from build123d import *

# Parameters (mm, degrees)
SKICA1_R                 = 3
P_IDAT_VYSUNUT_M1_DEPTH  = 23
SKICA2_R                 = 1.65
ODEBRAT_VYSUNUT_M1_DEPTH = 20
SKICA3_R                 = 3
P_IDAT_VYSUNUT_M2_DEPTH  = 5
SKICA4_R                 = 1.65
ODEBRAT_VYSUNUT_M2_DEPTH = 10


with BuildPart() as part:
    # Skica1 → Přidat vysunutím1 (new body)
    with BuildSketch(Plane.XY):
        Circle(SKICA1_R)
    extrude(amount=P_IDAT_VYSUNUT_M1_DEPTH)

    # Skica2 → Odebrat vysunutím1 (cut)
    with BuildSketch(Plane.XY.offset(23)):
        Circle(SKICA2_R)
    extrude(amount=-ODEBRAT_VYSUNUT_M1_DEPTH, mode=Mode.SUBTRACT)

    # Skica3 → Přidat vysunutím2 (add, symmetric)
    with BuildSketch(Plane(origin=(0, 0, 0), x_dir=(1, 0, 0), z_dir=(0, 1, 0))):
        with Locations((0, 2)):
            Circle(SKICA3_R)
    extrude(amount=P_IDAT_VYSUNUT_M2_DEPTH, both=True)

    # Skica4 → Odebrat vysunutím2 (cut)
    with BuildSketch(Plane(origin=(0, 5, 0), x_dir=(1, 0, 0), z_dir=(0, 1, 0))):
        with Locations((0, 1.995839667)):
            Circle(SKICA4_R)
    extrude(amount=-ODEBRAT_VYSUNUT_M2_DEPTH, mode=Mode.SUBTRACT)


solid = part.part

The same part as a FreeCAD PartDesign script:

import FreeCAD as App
import Part
import Sketcher

V = App.Vector
Q = App.Units.Quantity

doc = App.newDocument("Part")
body = doc.addObject("PartDesign::Body", "Body")

# Sketch on XY plane
sketch1 = doc.addObject("Sketcher::SketchObject", "Sketch")
body.addObject(sketch1)
sketch1.AttachmentSupport = (doc.XY_Plane, [""])
sketch1.MapMode = "FlatFace"
sketch1.addGeometry(Part.Circle(V(0, 0, 0), V(0, 0, 1), 3), False)
sketch1.addConstraint(Sketcher.Constraint("Coincident", 0, 3, -1, 1))
sketch1.addConstraint(Sketcher.Constraint("Diameter", 0, Q("6 mm")))
pad1 = doc.addObject("PartDesign::Pad", "Pad")
body.addObject(pad1)
pad1.Profile = sketch1
pad1.Length = 23

# Sketch on XY plane
sketch2 = doc.addObject("Sketcher::SketchObject", "Sketch001")
body.addObject(sketch2)
sketch2.AttachmentSupport = (doc.XY_Plane, [""])
sketch2.MapMode = "FlatFace"
sketch2.AttachmentOffset = App.Placement(V(0, 0, 23), App.Rotation())
sketch2.addGeometry(Part.Circle(V(0, 0, 0), V(0, 0, 1), 1.6), False)
sketch2.addConstraint(Sketcher.Constraint("Coincident", 0, 3, -1, 1))
sketch2.addConstraint(Sketcher.Constraint("Diameter", 0, Q("3.3 mm")))
pocket1 = doc.addObject("PartDesign::Pocket", "Pocket")
body.addObject(pocket1)
pocket1.Profile = sketch2
pocket1.Length = 20

# Sketch on XZ plane
sketch3 = doc.addObject("Sketcher::SketchObject", "Sketch002")
body.addObject(sketch3)
sketch3.AttachmentSupport = (doc.XZ_Plane, [""])
sketch3.MapMode = "FlatFace"
sketch3.addGeometry(Part.Circle(V(0, -2, 0), V(0, 0, 1), 3), False)
sketch3.addConstraint(Sketcher.Constraint("PointOnObject", 0, 3, -2))
sketch3.addConstraint(Sketcher.Constraint("Diameter", 0, Q("6 mm")))
sketch3.addConstraint(Sketcher.Constraint("DistanceY", 0, 3, -1, 1, Q("2 mm")))
pad2 = doc.addObject("PartDesign::Pad", "Pad001")
body.addObject(pad2)
pad2.Profile = sketch3
pad2.Length = 10
pad2.Midplane = True

# Sketch on XZ plane
sketch4 = doc.addObject("Sketcher::SketchObject", "Sketch003")
body.addObject(sketch4)
sketch4.AttachmentSupport = (doc.XZ_Plane, [""])
sketch4.MapMode = "FlatFace"
sketch4.AttachmentOffset = App.Placement(V(0, 0, -5), App.Rotation())
sketch4.addGeometry(Part.Circle(V(0, -2, 0), V(0, 0, 1), 1.6), False)
sketch4.addConstraint(Sketcher.Constraint("PointOnObject", 0, 3, -2))
sketch4.addConstraint(Sketcher.Constraint("Diameter", 0, Q("3.3 mm")))
sketch4.addConstraint(Sketcher.Constraint("DistanceY", 0, 3, -1, 1, Q("1.99584 mm")))
pocket2 = doc.addObject("PartDesign::Pocket", "Pocket001")
body.addObject(pocket2)
pocket2.Profile = sketch4
pocket2.Length = 10
pocket2.Reversed = True

doc.recompute()
